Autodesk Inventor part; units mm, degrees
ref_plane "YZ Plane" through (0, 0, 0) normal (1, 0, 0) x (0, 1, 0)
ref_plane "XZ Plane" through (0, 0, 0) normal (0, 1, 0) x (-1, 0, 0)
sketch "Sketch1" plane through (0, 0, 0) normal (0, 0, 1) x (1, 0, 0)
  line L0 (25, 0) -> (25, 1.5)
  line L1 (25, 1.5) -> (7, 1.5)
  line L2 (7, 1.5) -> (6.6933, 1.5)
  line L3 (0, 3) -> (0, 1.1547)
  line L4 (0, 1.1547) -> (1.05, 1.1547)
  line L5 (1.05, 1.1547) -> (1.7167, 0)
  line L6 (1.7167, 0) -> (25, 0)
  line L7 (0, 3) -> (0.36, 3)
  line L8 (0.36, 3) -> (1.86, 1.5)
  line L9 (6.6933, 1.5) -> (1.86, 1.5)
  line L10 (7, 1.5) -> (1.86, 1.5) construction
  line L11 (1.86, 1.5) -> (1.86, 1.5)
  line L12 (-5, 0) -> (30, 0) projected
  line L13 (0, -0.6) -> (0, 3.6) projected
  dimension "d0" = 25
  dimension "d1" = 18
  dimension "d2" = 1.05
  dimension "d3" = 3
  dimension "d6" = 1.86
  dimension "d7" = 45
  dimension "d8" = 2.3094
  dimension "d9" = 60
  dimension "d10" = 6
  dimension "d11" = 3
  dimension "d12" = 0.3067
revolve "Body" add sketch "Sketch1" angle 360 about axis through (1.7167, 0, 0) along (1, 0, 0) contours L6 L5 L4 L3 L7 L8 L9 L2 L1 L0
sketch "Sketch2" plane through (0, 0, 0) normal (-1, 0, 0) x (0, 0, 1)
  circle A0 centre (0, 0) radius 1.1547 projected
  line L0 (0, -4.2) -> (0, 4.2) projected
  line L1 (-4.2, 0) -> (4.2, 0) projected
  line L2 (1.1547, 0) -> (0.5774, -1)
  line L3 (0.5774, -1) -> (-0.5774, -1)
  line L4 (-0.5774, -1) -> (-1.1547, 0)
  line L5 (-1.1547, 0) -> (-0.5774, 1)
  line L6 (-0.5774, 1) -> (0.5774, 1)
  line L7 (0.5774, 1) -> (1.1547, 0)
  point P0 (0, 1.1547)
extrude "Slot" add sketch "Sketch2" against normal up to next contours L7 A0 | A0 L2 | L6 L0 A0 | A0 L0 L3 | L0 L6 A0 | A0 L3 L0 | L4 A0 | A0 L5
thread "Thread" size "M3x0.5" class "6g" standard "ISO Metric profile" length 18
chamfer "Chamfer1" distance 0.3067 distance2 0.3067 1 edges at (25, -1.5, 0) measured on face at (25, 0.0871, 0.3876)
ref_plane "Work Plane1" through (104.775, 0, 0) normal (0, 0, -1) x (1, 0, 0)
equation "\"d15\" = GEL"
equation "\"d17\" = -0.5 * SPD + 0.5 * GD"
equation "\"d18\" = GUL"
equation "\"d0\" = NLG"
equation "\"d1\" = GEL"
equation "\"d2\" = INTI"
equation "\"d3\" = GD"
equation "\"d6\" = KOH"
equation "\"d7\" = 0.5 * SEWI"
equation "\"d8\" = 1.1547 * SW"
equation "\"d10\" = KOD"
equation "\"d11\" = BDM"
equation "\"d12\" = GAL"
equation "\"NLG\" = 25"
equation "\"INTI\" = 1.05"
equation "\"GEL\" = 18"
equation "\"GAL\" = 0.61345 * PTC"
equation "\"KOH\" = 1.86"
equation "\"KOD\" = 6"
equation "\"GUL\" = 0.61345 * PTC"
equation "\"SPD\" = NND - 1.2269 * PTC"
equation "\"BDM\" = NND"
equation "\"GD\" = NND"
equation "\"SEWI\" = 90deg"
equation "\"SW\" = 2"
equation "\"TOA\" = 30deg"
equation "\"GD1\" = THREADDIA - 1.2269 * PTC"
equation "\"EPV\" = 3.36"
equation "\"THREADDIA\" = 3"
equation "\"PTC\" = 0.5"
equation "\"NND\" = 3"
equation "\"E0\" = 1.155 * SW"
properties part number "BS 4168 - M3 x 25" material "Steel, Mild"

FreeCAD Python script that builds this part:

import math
import FreeCAD as App
import Part
import Sketcher
Q = App.Units.Quantity


def edges_at(feature, points):
    """Names of the edges that pass closest to the given points."""
    edges = feature.Shape.Edges
    near = lambda p: min(range(len(edges)), key=lambda i: edges[i].distToShape(Part.Vertex(*p))[0])
    return sorted({f"Edge{near(p) + 1}" for p in points})

doc = App.newDocument("Part")
body = doc.addObject("PartDesign::Body", "Body")

sketch1 = doc.addObject("Sketcher::SketchObject", "Sketch")
body.addObject(sketch1)
sketch1.AttachmentSupport = (doc.XY_Plane, [""])
sketch1.MapMode = "FlatFace"
sketch1.addGeometry(Part.LineSegment(App.Vector(1.7167, 0, 0), App.Vector(25, 0, 0)), False)
sketch1.addGeometry(Part.LineSegment(App.Vector(25, 0, 0), App.Vector(25, 1.5, 0)), False)
sketch1.addGeometry(Part.LineSegment(App.Vector(25, 1.5, 0), App.Vector(1.86, 1.5, 0)), False)
sketch1.addGeometry(Part.LineSegment(App.Vector(1.86, 1.5, 0), App.Vector(0.36, 3, 0)), False)
sketch1.addGeometry(Part.LineSegment(App.Vector(0.36, 3, 0), App.Vector(0, 3, 0)), False)
sketch1.addGeometry(Part.LineSegment(App.Vector(0, 3, 0), App.Vector(0, 1.1547, 0)), False)
sketch1.addGeometry(Part.LineSegment(App.Vector(0, 1.1547, 0), App.Vector(1.05, 1.1547, 0)), False)
sketch1.addGeometry(Part.LineSegment(App.Vector(1.05, 1.1547, 0), App.Vector(1.7167, 0, 0)), False)
sketch1.addConstraint(Sketcher.Constraint("Coincident", 0, 2, 1, 1))
sketch1.addConstraint(Sketcher.Constraint("Coincident", 1, 2, 2, 1))
sketch1.addConstraint(Sketcher.Constraint("Coincident", 2, 2, 3, 1))
sketch1.addConstraint(Sketcher.Constraint("Coincident", 3, 2, 4, 1))
sketch1.addConstraint(Sketcher.Constraint("Coincident", 4, 2, 5, 1))
sketch1.addConstraint(Sketcher.Constraint("Coincident", 5, 2, 6, 1))
sketch1.addConstraint(Sketcher.Constraint("Coincident", 6, 2, 7, 1))
sketch1.addConstraint(Sketcher.Constraint("Coincident", 7, 2, 0, 1))
sketch1.addConstraint(Sketcher.Constraint("Horizontal", 0))
sketch1.addConstraint(Sketcher.Constraint("Vertical", 1))
sketch1.addConstraint(Sketcher.Constraint("Horizontal", 2))
sketch1.addConstraint(Sketcher.Constraint("Horizontal", 4))
sketch1.addConstraint(Sketcher.Constraint("Vertical", 5))
sketch1.addConstraint(Sketcher.Constraint("Horizontal", 6))
sketch1.addConstraint(Sketcher.Constraint("PointOnObject", 0, 2, -1))
sketch1.addConstraint(Sketcher.Constraint("PointOnObject", 4, 2, -2))
sketch1.addConstraint(Sketcher.Constraint("DistanceX", -1, 1, 0, 2, Q("25 mm")))
sketch1.addConstraint(Sketcher.Constraint("DistanceY", -1, 1, 3, 2, Q("3 mm")))
sketch1.addConstraint(Sketcher.Constraint("DistanceX", 6, 1, 6, 2, Q("1.05 mm")))
sketch1.addConstraint(Sketcher.Constraint("DistanceX", -1, 1, 2, 2, Q("1.86 mm")))
sketch1.addConstraint(Sketcher.Constraint("Angle", 3, Q("135 deg")))
sketch1.addConstraint(Sketcher.Constraint("DistanceY", 1, 1, 1, 2, Q("1.5 mm")))
sketch1.addConstraint(Sketcher.Constraint("DistanceX", 0, 1, 0, 2, Q("23.2833 mm")))
sketch1.addConstraint(Sketcher.Constraint("DistanceY", 5, 2, 5, 1, Q("1.8453 mm")))
revolution = doc.addObject("PartDesign::Revolution", "Revolution")
body.addObject(revolution)
revolution.Profile = sketch1
revolution.ReferenceAxis = (sketch1, ["H_Axis"])
revolution.Angle = 360

sketch2 = doc.addObject("Sketcher::SketchObject", "Sketch001")
body.addObject(sketch2)
sketch2.AttachmentSupport = (doc.YZ_Plane, [""])
sketch2.MapMode = "FlatFace"
sketch2.addGeometry(Part.LineSegment(App.Vector(1, 0.5774, 0), App.Vector(0, 1.1547, 0)), False)
sketch2.addGeometry(Part.ArcOfCircle(Part.Circle(App.Vector(0, 0, 0), App.Vector(0, 0, 1), 1.1547), math.radians(30.002137), math.radians(90)), False)
sketch2.addGeometry(Part.ArcOfCircle(Part.Circle(App.Vector(0, 0, 0), App.Vector(0, 0, 1), 1.1547), math.radians(90), math.radians(149.997863)), False)
sketch2.addGeometry(Part.LineSegment(App.Vector(0, 1.1547, 0), App.Vector(-1, 0.5774, 0)), False)
sketch2.addGeometry(Part.ArcOfCircle(Part.Circle(App.Vector(0, 0, 0), App.Vector(0, 0, 1), 1.1547), math.radians(-30.002137), math.radians(30.002137)), False)
sketch2.addGeometry(Part.LineSegment(App.Vector(1, 0.5774, 0), App.Vector(1, -0.5774, 0)), False)
sketch2.addGeometry(Part.LineSegment(App.Vector(-1, 0.5774, 0), App.Vector(-1, -0.5774, 0)), False)
sketch2.addGeometry(Part.ArcOfCircle(Part.Circle(App.Vector(0, 0, 0), App.Vector(0, 0, 1), 1.1547), math.radians(149.997863), math.radians(210.002137)), False)
sketch2.addGeometry(Part.LineSegment(App.Vector(-1, -0.5774, 0), App.Vector(0, -1.1547, 0)), False)
sketch2.addGeometry(Part.ArcOfCircle(Part.Circle(App.Vector(0, 0, 0), App.Vector(0, 0, 1), 1.1547), math.radians(-149.997863), math.radians(-90)), False)
sketch2.addGeometry(Part.ArcOfCircle(Part.Circle(App.Vector(0, 0, 0), App.Vector(0, 0, 1), 1.1547), math.radians(-90), math.radians(-30.002137)), False)
sketch2.addGeometry(Part.LineSegment(App.Vector(0, -1.1547, 0), App.Vector(1, -0.5774, 0)), False)
sketch2.addConstraint(Sketcher.Constraint("Coincident", 0, 1, 1, 1))
sketch2.addConstraint(Sketcher.Constraint("Coincident", 1, 2, 0, 2))
sketch2.addConstraint(Sketcher.Constraint("Coincident", 2, 1, 3, 1))
sketch2.addConstraint(Sketcher.Constraint("Coincident", 3, 2, 2, 2))
sketch2.addConstraint(Sketcher.Constraint("Coincident", 4, 1, 5, 2))
sketch2.addConstraint(Sketcher.Constraint("Coincident", 5, 1, 4, 2))
sketch2.addConstraint(Sketcher.Constraint("Coincident", 6, 1, 7, 1))
sketch2.addConstraint(Sketcher.Constraint("Coincident", 7, 2, 6, 2))
sketch2.addConstraint(Sketcher.Constraint("Coincident", 8, 1, 9, 1))
sketch2.addConstraint(Sketcher.Constraint("Coincident", 9, 2, 8, 2))
sketch2.addConstraint(Sketcher.Constraint("Coincident", 10, 1, 11, 1))
sketch2.addConstraint(Sketcher.Constraint("Coincident", 11, 2, 10, 2))
sketch2.addConstraint(Sketcher.Constraint("Vertical", 5))
sketch2.addConstraint(Sketcher.Constraint("Vertical", 6))
sketch2.addConstraint(Sketcher.Constraint("Coincident", 1, 3, -1, 1))
sketch2.addConstraint(Sketcher.Constraint("Coincident", 2, 3, -1, 1))
sketch2.addConstraint(Sketcher.Constraint("Coincident", 4, 3, -1, 1))
sketch2.addConstraint(Sketcher.Constraint("Coincident", 7, 3, -1, 1))
sketch2.addConstraint(Sketcher.Constraint("Coincident", 9, 3, -1, 1))
sketch2.addConstraint(Sketcher.Constraint("Coincident", 10, 3, -1, 1))
sketch2.addConstraint(Sketcher.Constraint("Coincident", 2, 1, 1, 2))
sketch2.addConstraint(Sketcher.Constraint("Coincident", 5, 1, 0, 1))
sketch2.addConstraint(Sketcher.Constraint("Coincident", 6, 1, 3, 2))
sketch2.addConstraint(Sketcher.Constraint("Coincident", 8, 1, 7, 2))
sketch2.addConstraint(Sketcher.Constraint("Coincident", 10, 1, 9, 2))
sketch2.addConstraint(Sketcher.Constraint("PointOnObject", 1, 2, -2))
sketch2.addConstraint(Sketcher.Constraint("PointOnObject", 9, 2, -2))
sketch2.addConstraint(Sketcher.Constraint("Parallel", 0, 8))
sketch2.addConstraint(Sketcher.Constraint("Parallel", 3, 11))
sketch2.addConstraint(Sketcher.Constraint("DistanceX", -1, 1, 0, 1, Q("1 mm")))
sketch2.addConstraint(Sketcher.Constraint("Radius", 1, Q("1.1547 mm")))
pad1 = doc.addObject("PartDesign::Pad", "Pad")
body.addObject(pad1)
pad1.Profile = sketch2
pad1.Type = "UpToFirst"
doc.recompute()

chamfer = doc.addObject("PartDesign::Chamfer", "Chamfer")
body.addObject(chamfer)
chamfer.Base = (pad1, edges_at(pad1, [(25, -1.5, 0)]))
chamfer.ChamferType = "Two distances"
chamfer.Size = 0.3067
chamfer.Size2 = 0.3067

doc.recompute()
